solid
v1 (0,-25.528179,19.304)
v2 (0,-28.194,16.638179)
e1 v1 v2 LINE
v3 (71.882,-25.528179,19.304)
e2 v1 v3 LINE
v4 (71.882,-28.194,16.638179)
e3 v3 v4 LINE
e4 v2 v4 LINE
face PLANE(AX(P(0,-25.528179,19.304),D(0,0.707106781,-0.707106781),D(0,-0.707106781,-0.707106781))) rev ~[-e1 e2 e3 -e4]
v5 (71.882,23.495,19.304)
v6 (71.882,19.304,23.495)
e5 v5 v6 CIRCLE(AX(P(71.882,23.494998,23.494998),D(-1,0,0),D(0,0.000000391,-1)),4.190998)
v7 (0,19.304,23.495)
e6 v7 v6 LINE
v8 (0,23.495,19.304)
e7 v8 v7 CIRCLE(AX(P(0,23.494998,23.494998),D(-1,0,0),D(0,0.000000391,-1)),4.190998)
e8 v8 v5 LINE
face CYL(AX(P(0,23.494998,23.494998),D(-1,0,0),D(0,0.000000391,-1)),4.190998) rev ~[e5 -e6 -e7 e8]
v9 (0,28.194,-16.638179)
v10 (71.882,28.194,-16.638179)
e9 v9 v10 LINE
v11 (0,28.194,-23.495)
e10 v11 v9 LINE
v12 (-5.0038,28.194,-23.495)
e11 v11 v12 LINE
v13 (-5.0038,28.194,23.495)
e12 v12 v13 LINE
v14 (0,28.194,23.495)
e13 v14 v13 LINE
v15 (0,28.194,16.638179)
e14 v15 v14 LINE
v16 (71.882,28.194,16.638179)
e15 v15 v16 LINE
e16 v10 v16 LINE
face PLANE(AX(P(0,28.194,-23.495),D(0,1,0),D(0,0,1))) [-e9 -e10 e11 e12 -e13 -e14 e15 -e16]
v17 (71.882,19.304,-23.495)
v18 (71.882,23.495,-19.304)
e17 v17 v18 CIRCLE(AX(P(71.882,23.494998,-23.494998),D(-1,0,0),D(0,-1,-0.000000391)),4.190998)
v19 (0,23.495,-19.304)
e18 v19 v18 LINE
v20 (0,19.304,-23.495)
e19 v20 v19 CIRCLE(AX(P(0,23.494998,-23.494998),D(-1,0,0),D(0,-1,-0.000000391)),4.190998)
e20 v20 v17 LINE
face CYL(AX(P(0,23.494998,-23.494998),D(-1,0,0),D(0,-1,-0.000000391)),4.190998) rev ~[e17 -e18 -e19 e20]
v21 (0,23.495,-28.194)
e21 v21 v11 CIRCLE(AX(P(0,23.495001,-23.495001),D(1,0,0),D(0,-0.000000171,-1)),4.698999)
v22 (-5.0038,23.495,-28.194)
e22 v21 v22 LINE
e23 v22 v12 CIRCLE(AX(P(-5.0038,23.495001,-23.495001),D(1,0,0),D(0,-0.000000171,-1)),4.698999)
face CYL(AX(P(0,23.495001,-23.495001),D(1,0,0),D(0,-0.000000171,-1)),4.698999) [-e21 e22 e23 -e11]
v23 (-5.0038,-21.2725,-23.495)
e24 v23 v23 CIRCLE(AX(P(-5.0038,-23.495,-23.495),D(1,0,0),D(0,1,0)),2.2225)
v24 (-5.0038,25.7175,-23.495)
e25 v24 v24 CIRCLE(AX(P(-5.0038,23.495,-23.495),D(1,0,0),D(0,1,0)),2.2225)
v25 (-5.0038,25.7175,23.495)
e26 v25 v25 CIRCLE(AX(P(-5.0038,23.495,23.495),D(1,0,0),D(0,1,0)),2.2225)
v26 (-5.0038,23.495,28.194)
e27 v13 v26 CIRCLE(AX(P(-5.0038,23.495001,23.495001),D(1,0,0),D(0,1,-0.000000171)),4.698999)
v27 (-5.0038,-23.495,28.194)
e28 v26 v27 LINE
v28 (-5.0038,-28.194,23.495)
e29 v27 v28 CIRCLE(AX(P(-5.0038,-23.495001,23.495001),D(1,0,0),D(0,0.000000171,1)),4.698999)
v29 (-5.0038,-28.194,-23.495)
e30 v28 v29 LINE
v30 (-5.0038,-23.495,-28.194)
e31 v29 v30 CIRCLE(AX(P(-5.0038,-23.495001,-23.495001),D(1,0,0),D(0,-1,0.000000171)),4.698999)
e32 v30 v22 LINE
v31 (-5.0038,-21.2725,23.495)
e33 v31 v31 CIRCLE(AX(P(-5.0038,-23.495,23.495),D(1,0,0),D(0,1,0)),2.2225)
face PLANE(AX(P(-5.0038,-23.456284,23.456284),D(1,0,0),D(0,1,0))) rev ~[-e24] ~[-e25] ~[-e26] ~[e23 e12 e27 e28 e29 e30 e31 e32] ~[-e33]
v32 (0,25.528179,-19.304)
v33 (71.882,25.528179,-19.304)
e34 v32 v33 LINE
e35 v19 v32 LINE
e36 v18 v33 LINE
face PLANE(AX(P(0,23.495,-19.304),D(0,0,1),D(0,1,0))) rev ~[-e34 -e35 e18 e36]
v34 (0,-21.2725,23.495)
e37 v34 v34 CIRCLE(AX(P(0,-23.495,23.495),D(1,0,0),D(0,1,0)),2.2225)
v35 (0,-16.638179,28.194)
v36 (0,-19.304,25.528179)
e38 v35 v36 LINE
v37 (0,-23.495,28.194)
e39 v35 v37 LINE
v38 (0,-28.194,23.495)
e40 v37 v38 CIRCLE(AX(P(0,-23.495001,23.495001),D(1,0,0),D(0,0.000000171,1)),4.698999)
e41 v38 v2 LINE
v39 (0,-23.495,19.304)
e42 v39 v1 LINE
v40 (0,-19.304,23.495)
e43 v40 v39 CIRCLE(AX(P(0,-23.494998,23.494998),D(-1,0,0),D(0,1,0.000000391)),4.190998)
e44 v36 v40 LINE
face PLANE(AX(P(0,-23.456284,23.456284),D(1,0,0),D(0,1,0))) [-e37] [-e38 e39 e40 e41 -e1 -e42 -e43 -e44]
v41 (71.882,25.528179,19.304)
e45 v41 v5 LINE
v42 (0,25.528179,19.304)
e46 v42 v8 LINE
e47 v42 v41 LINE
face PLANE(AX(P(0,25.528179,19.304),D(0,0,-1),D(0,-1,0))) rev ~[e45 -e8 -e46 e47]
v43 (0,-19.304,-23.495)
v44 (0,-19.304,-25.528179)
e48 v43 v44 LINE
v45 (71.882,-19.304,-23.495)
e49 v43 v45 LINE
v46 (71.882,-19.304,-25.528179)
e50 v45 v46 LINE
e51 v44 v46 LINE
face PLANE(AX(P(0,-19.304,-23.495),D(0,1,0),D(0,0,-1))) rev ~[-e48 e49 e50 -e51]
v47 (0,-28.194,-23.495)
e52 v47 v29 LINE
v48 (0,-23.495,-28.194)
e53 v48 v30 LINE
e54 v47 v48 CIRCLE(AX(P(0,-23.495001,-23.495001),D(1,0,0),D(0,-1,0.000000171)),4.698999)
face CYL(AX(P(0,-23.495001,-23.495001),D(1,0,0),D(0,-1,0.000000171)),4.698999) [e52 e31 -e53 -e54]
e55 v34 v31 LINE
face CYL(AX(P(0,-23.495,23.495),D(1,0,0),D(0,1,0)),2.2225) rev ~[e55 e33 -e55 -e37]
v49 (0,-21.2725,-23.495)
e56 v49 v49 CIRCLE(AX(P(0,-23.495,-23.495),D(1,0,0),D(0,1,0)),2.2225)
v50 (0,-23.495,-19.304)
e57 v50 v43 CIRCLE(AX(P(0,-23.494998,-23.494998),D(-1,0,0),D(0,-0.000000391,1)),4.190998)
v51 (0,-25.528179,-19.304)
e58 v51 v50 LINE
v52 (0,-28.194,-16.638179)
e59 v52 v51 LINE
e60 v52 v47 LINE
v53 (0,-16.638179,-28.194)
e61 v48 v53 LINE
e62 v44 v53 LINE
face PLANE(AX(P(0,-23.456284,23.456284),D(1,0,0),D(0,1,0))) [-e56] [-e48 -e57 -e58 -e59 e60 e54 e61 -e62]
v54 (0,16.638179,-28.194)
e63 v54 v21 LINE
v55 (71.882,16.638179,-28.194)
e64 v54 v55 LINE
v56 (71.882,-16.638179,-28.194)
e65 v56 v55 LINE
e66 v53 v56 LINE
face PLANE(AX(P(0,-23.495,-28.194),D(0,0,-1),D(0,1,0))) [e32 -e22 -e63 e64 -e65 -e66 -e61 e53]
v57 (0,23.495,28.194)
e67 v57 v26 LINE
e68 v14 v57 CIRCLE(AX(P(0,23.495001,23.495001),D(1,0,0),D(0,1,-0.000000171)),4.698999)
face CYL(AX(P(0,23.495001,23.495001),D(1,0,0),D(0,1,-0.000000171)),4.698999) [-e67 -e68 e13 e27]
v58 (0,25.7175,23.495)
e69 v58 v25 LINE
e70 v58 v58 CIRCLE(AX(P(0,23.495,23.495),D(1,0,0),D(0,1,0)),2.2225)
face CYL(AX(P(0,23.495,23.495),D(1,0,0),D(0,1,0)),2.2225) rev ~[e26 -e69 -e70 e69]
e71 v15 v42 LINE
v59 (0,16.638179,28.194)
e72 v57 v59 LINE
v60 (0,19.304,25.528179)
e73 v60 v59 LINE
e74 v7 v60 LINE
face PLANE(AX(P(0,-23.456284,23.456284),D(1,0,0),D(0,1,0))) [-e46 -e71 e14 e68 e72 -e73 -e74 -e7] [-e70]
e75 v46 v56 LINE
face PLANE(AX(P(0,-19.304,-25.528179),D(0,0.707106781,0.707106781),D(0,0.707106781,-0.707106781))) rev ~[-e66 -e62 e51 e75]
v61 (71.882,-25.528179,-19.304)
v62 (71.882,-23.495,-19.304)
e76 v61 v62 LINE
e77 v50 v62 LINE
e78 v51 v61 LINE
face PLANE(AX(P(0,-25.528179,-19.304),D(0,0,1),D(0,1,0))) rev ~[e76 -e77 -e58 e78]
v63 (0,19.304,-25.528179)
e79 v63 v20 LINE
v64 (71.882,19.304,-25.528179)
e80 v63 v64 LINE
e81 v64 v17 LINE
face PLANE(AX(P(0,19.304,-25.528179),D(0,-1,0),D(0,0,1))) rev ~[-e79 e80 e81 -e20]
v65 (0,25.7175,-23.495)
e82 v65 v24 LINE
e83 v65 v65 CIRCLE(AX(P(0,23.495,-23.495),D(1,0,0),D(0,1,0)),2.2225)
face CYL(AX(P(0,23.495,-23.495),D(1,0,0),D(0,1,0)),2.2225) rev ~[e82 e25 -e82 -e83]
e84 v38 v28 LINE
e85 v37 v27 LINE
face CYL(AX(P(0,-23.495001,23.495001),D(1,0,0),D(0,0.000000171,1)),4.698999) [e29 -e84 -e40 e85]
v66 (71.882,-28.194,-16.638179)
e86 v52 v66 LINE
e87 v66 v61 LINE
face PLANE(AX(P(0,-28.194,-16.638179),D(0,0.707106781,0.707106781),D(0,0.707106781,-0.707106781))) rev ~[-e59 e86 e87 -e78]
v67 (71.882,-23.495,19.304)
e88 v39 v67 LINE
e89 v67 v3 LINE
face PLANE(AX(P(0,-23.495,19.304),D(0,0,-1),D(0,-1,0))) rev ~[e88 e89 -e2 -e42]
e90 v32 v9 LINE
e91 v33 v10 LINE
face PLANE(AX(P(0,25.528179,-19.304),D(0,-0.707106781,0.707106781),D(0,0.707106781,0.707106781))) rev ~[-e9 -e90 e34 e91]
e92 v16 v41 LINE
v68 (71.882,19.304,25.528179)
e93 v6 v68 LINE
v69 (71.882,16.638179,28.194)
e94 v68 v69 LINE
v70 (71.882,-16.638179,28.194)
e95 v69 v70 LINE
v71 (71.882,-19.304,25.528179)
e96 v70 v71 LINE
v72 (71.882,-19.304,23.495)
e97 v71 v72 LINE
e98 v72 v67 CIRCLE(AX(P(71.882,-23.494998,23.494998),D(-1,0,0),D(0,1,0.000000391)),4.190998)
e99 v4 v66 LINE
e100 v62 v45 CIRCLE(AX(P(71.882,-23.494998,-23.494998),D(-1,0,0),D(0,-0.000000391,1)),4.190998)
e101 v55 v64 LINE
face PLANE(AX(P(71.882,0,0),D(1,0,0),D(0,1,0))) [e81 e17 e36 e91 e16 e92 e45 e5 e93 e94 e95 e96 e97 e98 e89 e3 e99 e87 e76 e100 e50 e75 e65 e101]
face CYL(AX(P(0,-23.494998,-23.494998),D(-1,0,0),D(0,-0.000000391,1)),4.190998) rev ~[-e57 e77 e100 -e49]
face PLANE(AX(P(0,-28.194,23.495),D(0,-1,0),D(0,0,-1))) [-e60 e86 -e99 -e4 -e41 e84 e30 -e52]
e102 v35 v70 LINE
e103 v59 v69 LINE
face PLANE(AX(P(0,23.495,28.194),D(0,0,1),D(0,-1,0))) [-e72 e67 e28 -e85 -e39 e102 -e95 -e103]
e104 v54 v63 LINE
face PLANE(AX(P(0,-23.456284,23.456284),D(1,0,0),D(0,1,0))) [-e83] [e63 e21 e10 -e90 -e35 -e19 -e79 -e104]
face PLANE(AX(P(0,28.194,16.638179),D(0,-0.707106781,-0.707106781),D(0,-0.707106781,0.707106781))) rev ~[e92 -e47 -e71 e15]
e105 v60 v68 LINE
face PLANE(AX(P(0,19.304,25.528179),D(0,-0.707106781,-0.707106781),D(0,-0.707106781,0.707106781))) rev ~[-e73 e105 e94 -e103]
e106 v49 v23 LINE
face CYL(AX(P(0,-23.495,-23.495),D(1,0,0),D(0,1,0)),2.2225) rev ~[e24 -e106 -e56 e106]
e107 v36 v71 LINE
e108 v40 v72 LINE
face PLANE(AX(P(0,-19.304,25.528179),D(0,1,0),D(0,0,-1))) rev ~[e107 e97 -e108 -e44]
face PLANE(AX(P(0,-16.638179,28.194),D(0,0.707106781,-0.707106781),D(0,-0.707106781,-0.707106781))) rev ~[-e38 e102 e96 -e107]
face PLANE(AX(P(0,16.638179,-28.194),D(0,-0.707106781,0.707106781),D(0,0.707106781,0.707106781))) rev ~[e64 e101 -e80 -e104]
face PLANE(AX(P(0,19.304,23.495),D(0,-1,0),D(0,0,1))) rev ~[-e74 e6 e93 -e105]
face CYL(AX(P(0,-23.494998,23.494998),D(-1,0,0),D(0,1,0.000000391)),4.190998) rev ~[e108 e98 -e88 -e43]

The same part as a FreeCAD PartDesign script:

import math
import FreeCAD as App
import Part
import Sketcher
from FreeCAD import Vector
Q = App.Units.Quantity

doc = App.newDocument("Part")
params = doc.addObject("Spreadsheet::Sheet", "Params")
for row, (alias, value) in enumerate([
    ("sketch1_radius", "0.1649999 in"),
    ("pad1_length", "2.83 in"),
    ("sketch2_diameter", "0.175 in"),
    ("sketch2_radius", "0.185 in"),
    ("sketch2_width", "1.85 in"),
    ("pad2_length", "0.197 in"),
], start=1):
    params.set(f"A{row}", alias)
    params.set(f"B{row}", "=" + value)
    params.setAlias(f"B{row}", alias)

body = doc.addObject("PartDesign::Body", "Body")

# Sketch on YZ plane
sketch1 = doc.addObject("Sketcher::SketchObject", "Sketch")
body.addObject(sketch1)
sketch1.AttachmentSupport = (doc.YZ_Plane, [""])
sketch1.MapMode = "FlatFace"
sketch1.addGeometry(Part.LineSegment(Vector(-23.495, 19.304, 0), Vector(-25.528179, 19.304, 0)), False)
sketch1.addGeometry(Part.LineSegment(Vector(-25.528179, 19.304, 0), Vector(-28.194, 16.638179, 0)), False)
sketch1.addGeometry(Part.LineSegment(Vector(-28.194, 16.638179, 0), Vector(-28.194, -16.638179, 0)), False)
sketch1.addGeometry(Part.LineSegment(Vector(-28.194, -16.638179, 0), Vector(-25.528179, -19.304, 0)), False)
sketch1.addGeometry(Part.LineSegment(Vector(-25.528179, -19.304, 0), Vector(-23.495, -19.304, 0)), False)
sketch1.addGeometry(Part.ArcOfCircle(Part.Circle(Vector(-23.494998, -23.494998, 0), Vector(0, 0, 1), 4.190998), math.radians(-0.000022), math.radians(90.000022)), False)
sketch1.addGeometry(Part.LineSegment(Vector(-19.304, -23.495, 0), Vector(-19.304, -25.528179, 0)), False)
sketch1.addGeometry(Part.LineSegment(Vector(-19.304, -25.528179, 0), Vector(-16.638179, -28.194, 0)), False)
sketch1.addGeometry(Part.LineSegment(Vector(-16.638179, -28.194, 0), Vector(16.638179, -28.194, 0)), False)
sketch1.addGeometry(Part.LineSegment(Vector(16.638179, -28.194, 0), Vector(19.304, -25.528179, 0)), False)
sketch1.addGeometry(Part.LineSegment(Vector(19.304, -25.528179, 0), Vector(19.304, -23.495, 0)), False)
sketch1.addGeometry(Part.ArcOfCircle(Part.Circle(Vector(23.494998, -23.494998, 0), Vector(0, 0, 1), 4.190998), math.radians(89.999978), math.radians(180.000022)), False)
sketch1.addGeometry(Part.LineSegment(Vector(23.495, -19.304, 0), Vector(25.528179, -19.304, 0)), False)
sketch1.addGeometry(Part.LineSegment(Vector(25.528179, -19.304, 0), Vector(28.194, -16.638179, 0)), False)
sketch1.addGeometry(Part.LineSegment(Vector(28.194, -16.638179, 0), Vector(28.194, 16.638179, 0)), False)
sketch1.addGeometry(Part.LineSegment(Vector(28.194, 16.638179, 0), Vector(25.528179, 19.304, 0)), False)
sketch1.addGeometry(Part.LineSegment(Vector(25.528179, 19.304, 0), Vector(23.495, 19.304, 0)), False)
sketch1.addGeometry(Part.ArcOfCircle(Part.Circle(Vector(23.494998, 23.494998, 0), Vector(0, 0, 1), 4.190998), math.radians(179.999978), math.radians(270.000022)), False)
sketch1.addGeometry(Part.LineSegment(Vector(19.304, 23.495, 0), Vector(19.304, 25.528179, 0)), False)
sketch1.addGeometry(Part.LineSegment(Vector(19.304, 25.528179, 0), Vector(16.638179, 28.194, 0)), False)
sketch1.addGeometry(Part.LineSegment(Vector(16.638179, 28.194, 0), Vector(-16.638179, 28.194, 0)), False)
sketch1.addGeometry(Part.LineSegment(Vector(-16.638179, 28.194, 0), Vector(-19.304, 25.528179, 0)), False)
sketch1.addGeometry(Part.LineSegment(Vector(-19.304, 25.528179, 0), Vector(-19.304, 23.495, 0)), False)
sketch1.addGeometry(Part.ArcOfCircle(Part.Circle(Vector(-23.494998, 23.494998, 0), Vector(0, 0, 1), 4.190998), math.radians(-90.000022), math.radians(0.000022)), False)
sketch1.addConstraint(Sketcher.Constraint("Coincident", 0, 2, 1, 1))
sketch1.addConstraint(Sketcher.Constraint("Coincident", 1, 2, 2, 1))
sketch1.addConstraint(Sketcher.Constraint("Coincident", 2, 2, 3, 1))
sketch1.addConstraint(Sketcher.Constraint("Coincident", 3, 2, 4, 1))
sketch1.addConstraint(Sketcher.Constraint("Tangent", 4, 2, 5, 2))
sketch1.addConstraint(Sketcher.Constraint("Tangent", 5, 1, 6, 1))
sketch1.addConstraint(Sketcher.Constraint("Coincident", 6, 2, 7, 1))
sketch1.addConstraint(Sketcher.Constraint("Coincident", 7, 2, 8, 1))
sketch1.addConstraint(Sketcher.Constraint("Coincident", 8, 2, 9, 1))
sketch1.addConstraint(Sketcher.Constraint("Coincident", 9, 2, 10, 1))
sketch1.addConstraint(Sketcher.Constraint("Tangent", 10, 2, 11, 2))
sketch1.addConstraint(Sketcher.Constraint("Tangent", 11, 1, 12, 1))
sketch1.addConstraint(Sketcher.Constraint("Coincident", 12, 2, 13, 1))
sketch1.addConstraint(Sketcher.Constraint("Coincident", 13, 2, 14, 1))
sketch1.addConstraint(Sketcher.Constraint("Coincident", 14, 2, 15, 1))
sketch1.addConstraint(Sketcher.Constraint("Coincident", 15, 2, 16, 1))
sketch1.addConstraint(Sketcher.Constraint("Tangent", 16, 2, 17, 2))
sketch1.addConstraint(Sketcher.Constraint("Tangent", 17, 1, 18, 1))
sketch1.addConstraint(Sketcher.Constraint("Coincident", 18, 2, 19, 1))
sketch1.addConstraint(Sketcher.Constraint("Coincident", 19, 2, 20, 1))
sketch1.addConstraint(Sketcher.Constraint("Coincident", 20, 2, 21, 1))
sketch1.addConstraint(Sketcher.Constraint("Coincident", 21, 2, 22, 1))
sketch1.addConstraint(Sketcher.Constraint("Tangent", 22, 2, 23, 2))
sketch1.addConstraint(Sketcher.Constraint("Tangent", 23, 1, 0, 1))
sketch1.addConstraint(Sketcher.Constraint("Horizontal", 0))
sketch1.addConstraint(Sketcher.Constraint("Vertical", 2))
sketch1.addConstraint(Sketcher.Constraint("Horizontal", 4))
sketch1.addConstraint(Sketcher.Constraint("Vertical", 6))
sketch1.addConstraint(Sketcher.Constraint("Horizontal", 8))
sketch1.addConstraint(Sketcher.Constraint("Vertical", 10))
sketch1.addConstraint(Sketcher.Constraint("Horizontal", 12))
sketch1.addConstraint(Sketcher.Constraint("Vertical", 14))
sketch1.addConstraint(Sketcher.Constraint("Horizontal", 16))
sketch1.addConstraint(Sketcher.Constraint("Vertical", 18))
sketch1.addConstraint(Sketcher.Constraint("Horizontal", 20))
sketch1.addConstraint(Sketcher.Constraint("Vertical", 22))
sketch1.addConstraint(Sketcher.Constraint("Equal", 5, 11))
sketch1.addConstraint(Sketcher.Constraint("Equal", 11, 17))
sketch1.addConstraint(Sketcher.Constraint("Equal", 17, 23))
sketch1.addConstraint(Sketcher.Constraint("Symmetric", 5, 3, 17, 3, -1, 1))
sketch1.addConstraint(Sketcher.Constraint("Symmetric", 11, 3, 23, 3, -1, 1))
sketch1.addConstraint(Sketcher.Constraint("Symmetric", 1, 2, 13, 2, -1, 1))
sketch1.addConstraint(Sketcher.Constraint("Symmetric", 7, 2, 19, 2, -1, 1))
sketch1.addConstraint(Sketcher.Constraint("Symmetric", 5, 3, 11, 3, -2))
sketch1.addConstraint(Sketcher.Constraint("Perpendicular", 1, 3))
sketch1.addConstraint(Sketcher.Constraint("Parallel", 3, 7))
sketch1.addConstraint(Sketcher.Constraint("Perpendicular", 7, 9))
sketch1.addConstraint(Sketcher.Constraint("Parallel", 9, 13))
sketch1.addConstraint(Sketcher.Constraint("Perpendicular", 13, 15))
sketch1.addConstraint(Sketcher.Constraint("Parallel", 15, 19))
sketch1.addConstraint(Sketcher.Constraint("Perpendicular", 19, 21))
sketch1.addConstraint(Sketcher.Constraint("Horizontal", 6, 2, 9, 2))
sketch1.addConstraint(Sketcher.Constraint("Horizontal", 2, 2, 13, 2))
sketch1.addConstraint(Sketcher.Constraint("Horizontal", 1, 2, 14, 2))
sketch1.addConstraint(Sketcher.Constraint("Horizontal", 18, 2, 21, 2))
sketch1.addConstraint(Sketcher.Constraint("Vertical", 0, 2, 3, 2))
sketch1.addConstraint(Sketcher.Constraint("Equal", 20, 2))
sketch1.addConstraint(Sketcher.Constraint("Equal", 16, 6))
sketch1.addConstraint(Sketcher.Constraint("Equal", 3, 7))
sketch1.addConstraint(Sketcher.Constraint("Radius", 5, Q("0.1649999 in")))
sketch1.addConstraint(Sketcher.Constraint("DistanceY", -1, 1, 0, 2, Q("0.76 in")))
sketch1.addConstraint(Sketcher.Constraint("DistanceX", 1, 2, -1, 1, Q("1.11 in")))
sketch1.addConstraint(Sketcher.Constraint("DistanceX", 0, 2, 0, 1, 2.033179))
sketch1.setExpression("Constraints[59]", "Params.sketch1_radius")
pad1 = doc.addObject("PartDesign::Pad", "Pad")
body.addObject(pad1)
pad1.Profile = sketch1
pad1.setExpression("Length", "Params.pad1_length")

# Sketch on YZ plane
sketch2 = doc.addObject("Sketcher::SketchObject", "Sketch001")
body.addObject(sketch2)
sketch2.AttachmentSupport = (doc.YZ_Plane, [""])
sketch2.MapMode = "FlatFace"
sketch2.addGeometry(Part.LineSegment(Vector(-28.194, 23.495, 0), Vector(-28.194, -23.495, 0)), False)
sketch2.addGeometry(Part.ArcOfCircle(Part.Circle(Vector(-23.495001, -23.495001, 0), Vector(0, 0, 1), 4.698999), math.radians(179.99999), math.radians(270.00001)), False)
sketch2.addGeometry(Part.LineSegment(Vector(-23.495, -28.194, 0), Vector(23.495, -28.194, 0)), False)
sketch2.addGeometry(Part.ArcOfCircle(Part.Circle(Vector(23.495001, -23.495001, 0), Vector(0, 0, 1), 4.698999), math.radians(-90.00001), math.radians(0.00001)), False)
sketch2.addGeometry(Part.LineSegment(Vector(28.194, -23.495, 0), Vector(28.194, 23.495, 0)), False)
sketch2.addGeometry(Part.ArcOfCircle(Part.Circle(Vector(23.495001, 23.495001, 0), Vector(0, 0, 1), 4.698999), math.radians(-0.00001), math.radians(90.00001)), False)
sketch2.addGeometry(Part.LineSegment(Vector(23.495, 28.194, 0), Vector(-23.495, 28.194, 0)), False)
sketch2.addGeometry(Part.ArcOfCircle(Part.Circle(Vector(-23.495001, 23.495001, 0), Vector(0, 0, 1), 4.698999), math.radians(89.99999), math.radians(180.00001)), False)
sketch2.addGeometry(Part.Circle(Vector(-23.495, -23.495, 0), Vector(0, 0, 1), 2.2225), False)
sketch2.addGeometry(Part.Circle(Vector(23.495, -23.495, 0), Vector(0, 0, 1), 2.2225), False)
sketch2.addGeometry(Part.Circle(Vector(-23.495, 23.495, 0), Vector(0, 0, 1), 2.2225), False)
sketch2.addGeometry(Part.Circle(Vector(23.495, 23.495, 0), Vector(0, 0, 1), 2.2225), False)
sketch2.addConstraint(Sketcher.Constraint("Tangent", 0, 2, 1, 1))
sketch2.addConstraint(Sketcher.Constraint("Tangent", 1, 2, 2, 1))
sketch2.addConstraint(Sketcher.Constraint("Tangent", 2, 2, 3, 1))
sketch2.addConstraint(Sketcher.Constraint("Tangent", 3, 2, 4, 1))
sketch2.addConstraint(Sketcher.Constraint("Tangent", 4, 2, 5, 1))
sketch2.addConstraint(Sketcher.Constraint("Tangent", 5, 2, 6, 1))
sketch2.addConstraint(Sketcher.Constraint("Tangent", 6, 2, 7, 1))
sketch2.addConstraint(Sketcher.Constraint("Tangent", 7, 2, 0, 1))
sketch2.addConstraint(Sketcher.Constraint("Vertical", 0))
sketch2.addConstraint(Sketcher.Constraint("Horizontal", 2))
sketch2.addConstraint(Sketcher.Constraint("Vertical", 4))
sketch2.addConstraint(Sketcher.Constraint("Horizontal", 6))
sketch2.addConstraint(Sketcher.Constraint("Coincident", 8, 3, 1, 3))
sketch2.addConstraint(Sketcher.Constraint("Coincident", 9, 3, 3, 3))
sketch2.addConstraint(Sketcher.Constraint("Coincident", 10, 3, 7, 3))
sketch2.addConstraint(Sketcher.Constraint("Coincident", 11, 3, 5, 3))
sketch2.addConstraint(Sketcher.Constraint("Equal", 1, 3))
sketch2.addConstraint(Sketcher.Constraint("Equal", 3, 5))
sketch2.addConstraint(Sketcher.Constraint("Equal", 5, 7))
sketch2.addConstraint(Sketcher.Constraint("Equal", 8, 9))
sketch2.addConstraint(Sketcher.Constraint("Equal", 9, 10))
sketch2.addConstraint(Sketcher.Constraint("Equal", 10, 11))
sketch2.addConstraint(Sketcher.Constraint("Symmetric", 1, 3, 5, 3, -1, 1))
sketch2.addConstraint(Sketcher.Constraint("Equal", 6, 0))
sketch2.addConstraint(Sketcher.Constraint("Diameter", 8, Q("0.175 in")))
sketch2.addConstraint(Sketcher.Constraint("Radius", 1, Q("0.185 in")))
sketch2.addConstraint(Sketcher.Constraint("DistanceX", 2, 1, 2, 2, Q("1.85 in")))
sketch2.setExpression("Constraints[24]", "Params.sketch2_diameter")
sketch2.setExpression("Constraints[25]", "Params.sketch2_radius")
sketch2.setExpression("Constraints[26]", "Params.sketch2_width")
pad2 = doc.addObject("PartDesign::Pad", "Pad001")
body.addObject(pad2)
pad2.Profile = sketch2
pad2.setExpression("Length", "Params.pad2_length")
pad2.Reversed = True

doc.recompute()
